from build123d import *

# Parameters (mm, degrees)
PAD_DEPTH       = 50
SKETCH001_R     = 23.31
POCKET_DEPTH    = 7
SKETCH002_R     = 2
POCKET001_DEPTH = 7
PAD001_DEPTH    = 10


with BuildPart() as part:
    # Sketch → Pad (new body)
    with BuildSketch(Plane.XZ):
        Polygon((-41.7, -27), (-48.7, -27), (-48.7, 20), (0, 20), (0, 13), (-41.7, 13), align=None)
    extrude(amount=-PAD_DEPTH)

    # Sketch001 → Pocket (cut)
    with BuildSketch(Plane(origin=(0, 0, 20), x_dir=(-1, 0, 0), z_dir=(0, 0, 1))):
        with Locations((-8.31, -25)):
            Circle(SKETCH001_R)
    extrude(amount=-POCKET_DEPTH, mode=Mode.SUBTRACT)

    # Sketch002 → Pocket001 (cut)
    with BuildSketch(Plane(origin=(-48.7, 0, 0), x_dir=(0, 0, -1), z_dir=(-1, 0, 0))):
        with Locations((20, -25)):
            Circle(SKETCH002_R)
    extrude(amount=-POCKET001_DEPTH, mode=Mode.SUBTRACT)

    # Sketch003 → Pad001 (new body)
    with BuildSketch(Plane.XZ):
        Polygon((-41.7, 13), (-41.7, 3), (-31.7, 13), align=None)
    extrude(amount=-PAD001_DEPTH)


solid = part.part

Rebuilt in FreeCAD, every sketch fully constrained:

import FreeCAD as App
import Part
import Sketcher
from FreeCAD import Vector

doc = App.newDocument("Part")
body = doc.addObject("PartDesign::Body", "Body")

# Sketch on XZ plane
sketch1 = body.newObject("Sketcher::SketchObject", "Sketch")
sketch1.AttachmentSupport = (doc.getObject("XZ_Plane"), [""])
sketch1.MapMode = "FlatFace"
sketch1.addGeometry([
    Part.LineSegment(Vector(-49, -27, 0), Vector(-42, -27, 0)),  # 0
    Part.LineSegment(Vector(-42, -27, 0), Vector(-42, 13, 0)),  # 1
    Part.LineSegment(Vector(-42, 13, 0), Vector(0, 13, 0)),  # 2
    Part.LineSegment(Vector(0, 13, 0), Vector(0, 20, 0)),  # 3
    Part.LineSegment(Vector(0, 20, 0), Vector(-49, 20, 0)),  # 4
    Part.LineSegment(Vector(-49, 20, 0), Vector(-49, -27, 0)),  # 5
], False)
sketch1.addConstraint([
    Sketcher.Constraint("Coincident", 0, 2, 1, 1),
    Sketcher.Constraint("Coincident", 1, 2, 2, 1),
    Sketcher.Constraint("Coincident", 2, 2, 3, 1),
    Sketcher.Constraint("Coincident", 3, 2, 4, 1),
    Sketcher.Constraint("Coincident", 4, 2, 5, 1),
    Sketcher.Constraint("Coincident", 5, 2, 0, 1),
    Sketcher.Constraint("Horizontal", 0),
    Sketcher.Constraint("Vertical", 1),
    Sketcher.Constraint("Horizontal", 2),
    Sketcher.Constraint("Vertical", 3),
    Sketcher.Constraint("Horizontal", 4),
    Sketcher.Constraint("Vertical", 5),
    Sketcher.Constraint("PointOnObject", 2, 2, -2),
    Sketcher.Constraint("Equal", 0, 3),
    Sketcher.Constraint("DistanceX", 0, 1, 0, 2, 7.0),
    Sketcher.Constraint("DistanceY", 1, 1, 1, 2, 40.0),
    Sketcher.Constraint("DistanceX", 2, 1, 2, 2, 41.7),
    Sketcher.Constraint("DistanceY", 0, 2, -1, 1, 27.0),
])
pad1 = body.newObject("PartDesign::Pad", "Pad")
pad1.Profile = sketch1
pad1.Length = 50
pad1.Reversed = True

# Sketch on XY plane
sketch2 = body.newObject("Sketcher::SketchObject", "Sketch001")
sketch2.AttachmentSupport = (doc.getObject("XY_Plane"), [""])
sketch2.MapMode = "FlatFace"
sketch2.AttachmentOffset = App.Placement(Vector(0, 0, 20), App.Rotation())
sketch2.addGeometry(Part.Circle(Vector(8, 25, 0), Vector(0, 0, 1), 23), False)
sketch2.addConstraint([
    Sketcher.Constraint("Diameter", 0, 46.62),
    Sketcher.Constraint("DistanceY", -1, 1, 0, 3, 25.0),
    Sketcher.Constraint("DistanceX", -1, 1, 0, 3, 8.31),
])
pocket1 = body.newObject("PartDesign::Pocket", "Pocket")
pocket1.Profile = sketch2
pocket1.Length = 7

# Sketch on YZ plane
sketch3 = body.newObject("Sketcher::SketchObject", "Sketch002")
sketch3.AttachmentSupport = (doc.getObject("YZ_Plane"), [""])
sketch3.MapMode = "FlatFace"
sketch3.AttachmentOffset = App.Placement(Vector(0, 0, -48.7), App.Rotation())
sketch3.addGeometry(Part.Circle(Vector(25, -20, 0), Vector(0, 0, 1), 2), False)
sketch3.addConstraint([
    Sketcher.Constraint("Diameter", 0, 4.0),
    Sketcher.Constraint("DistanceX", -1, 1, 0, 3, 25.0),
    Sketcher.Constraint("DistanceY", 0, 3, -1, 1, 20.0),
])
pocket2 = body.newObject("PartDesign::Pocket", "Pocket001")
pocket2.Profile = sketch3
pocket2.Length = 7
pocket2.Reversed = True

# Sketch on XZ plane
sketch4 = body.newObject("Sketcher::SketchObject", "Sketch003")
sketch4.AttachmentSupport = (doc.getObject("XZ_Plane"), [""])
sketch4.MapMode = "FlatFace"
sketch4.addGeometry([
    Part.LineSegment(Vector(-42, 13, 0), Vector(-42, 3, 0)),
    Part.LineSegment(Vector(-42, 3, 0), Vector(-32, 13, 0)),
    Part.LineSegment(Vector(-32, 13, 0), Vector(-42, 13, 0)),
], False)
sketch4.addConstraint([
    Sketcher.Constraint("Coincident", 0, 2, 1, 1),
    Sketcher.Constraint("Coincident", 1, 2, 2, 1),
    Sketcher.Constraint("Coincident", 2, 2, 0, 1),
    Sketcher.Constraint("Vertical", 0),
    Sketcher.Constraint("Horizontal", 2),
    Sketcher.Constraint("Equal", 2, 0),
    Sketcher.Constraint("DistanceX", 2, 2, 2, 1, 10.0),
    Sketcher.Constraint("DistanceY", -1, 1, 0, 2, 3.0),
    Sketcher.Constraint("DistanceX", 0, 2, -1, 1, 41.7),
])
pad2 = body.newObject("PartDesign::Pad", "Pad001")
pad2.Profile = sketch4
pad2.Length = 10
pad2.Reversed = True

doc.recompute()
